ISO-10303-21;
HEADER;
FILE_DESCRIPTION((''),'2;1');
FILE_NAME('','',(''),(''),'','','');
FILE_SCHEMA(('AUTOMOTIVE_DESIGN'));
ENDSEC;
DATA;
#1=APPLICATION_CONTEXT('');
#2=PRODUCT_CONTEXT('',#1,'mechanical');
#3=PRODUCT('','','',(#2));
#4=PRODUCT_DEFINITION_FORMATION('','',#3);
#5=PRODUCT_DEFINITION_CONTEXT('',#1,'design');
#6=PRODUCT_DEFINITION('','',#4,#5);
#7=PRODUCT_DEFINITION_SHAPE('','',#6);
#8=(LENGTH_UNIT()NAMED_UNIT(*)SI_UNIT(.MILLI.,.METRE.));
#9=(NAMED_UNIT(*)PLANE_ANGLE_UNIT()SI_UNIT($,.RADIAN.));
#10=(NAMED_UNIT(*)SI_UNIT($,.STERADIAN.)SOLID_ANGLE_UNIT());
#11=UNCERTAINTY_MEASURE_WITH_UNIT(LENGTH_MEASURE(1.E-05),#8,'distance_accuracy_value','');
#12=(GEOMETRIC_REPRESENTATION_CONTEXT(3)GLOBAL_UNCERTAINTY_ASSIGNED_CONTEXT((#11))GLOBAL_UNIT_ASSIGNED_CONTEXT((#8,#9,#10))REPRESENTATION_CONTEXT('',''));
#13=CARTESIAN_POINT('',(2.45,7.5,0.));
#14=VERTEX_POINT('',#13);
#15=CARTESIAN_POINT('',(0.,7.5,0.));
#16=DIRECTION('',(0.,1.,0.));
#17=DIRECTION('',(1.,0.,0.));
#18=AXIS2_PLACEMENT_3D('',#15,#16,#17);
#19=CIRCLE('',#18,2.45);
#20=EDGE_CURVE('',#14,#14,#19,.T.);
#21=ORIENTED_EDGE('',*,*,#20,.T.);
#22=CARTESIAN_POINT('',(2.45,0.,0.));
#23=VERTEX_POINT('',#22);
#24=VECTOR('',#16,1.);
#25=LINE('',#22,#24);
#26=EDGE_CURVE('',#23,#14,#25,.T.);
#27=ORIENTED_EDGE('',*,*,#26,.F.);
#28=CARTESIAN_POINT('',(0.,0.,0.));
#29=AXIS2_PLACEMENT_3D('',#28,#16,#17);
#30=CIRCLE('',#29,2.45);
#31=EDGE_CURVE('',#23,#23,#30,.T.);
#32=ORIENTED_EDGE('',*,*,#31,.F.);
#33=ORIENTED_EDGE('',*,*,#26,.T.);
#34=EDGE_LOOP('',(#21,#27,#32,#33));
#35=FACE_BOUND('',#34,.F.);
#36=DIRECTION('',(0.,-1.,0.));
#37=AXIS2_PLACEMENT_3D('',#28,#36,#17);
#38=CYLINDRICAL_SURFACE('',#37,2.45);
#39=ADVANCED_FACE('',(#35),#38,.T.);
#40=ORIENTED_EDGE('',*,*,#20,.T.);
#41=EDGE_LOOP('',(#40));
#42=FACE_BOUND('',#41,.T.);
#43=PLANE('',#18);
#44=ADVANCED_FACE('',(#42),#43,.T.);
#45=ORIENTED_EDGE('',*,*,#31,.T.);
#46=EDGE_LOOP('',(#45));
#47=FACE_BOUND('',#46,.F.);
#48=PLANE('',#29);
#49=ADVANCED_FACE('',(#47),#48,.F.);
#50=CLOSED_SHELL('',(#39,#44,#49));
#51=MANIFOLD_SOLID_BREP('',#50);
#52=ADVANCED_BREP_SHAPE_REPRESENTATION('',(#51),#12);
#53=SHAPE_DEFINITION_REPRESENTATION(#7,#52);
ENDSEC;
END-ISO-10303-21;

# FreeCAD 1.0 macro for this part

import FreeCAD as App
import Part
import Sketcher
from FreeCAD import Vector

doc = App.newDocument("Part")
params = doc.addObject("Spreadsheet::Sheet", "Params")
for row, (alias, value) in enumerate([
    ("sketch1_diameter", "4.9 mm"),
    ("pad1_length", "7.5 mm"),
], start=1):
    params.set(f"A{row}", alias)
    params.set(f"B{row}", "=" + value)
    params.setAlias(f"B{row}", alias)

body = doc.addObject("PartDesign::Body", "Body")

# Sketch on XZ plane
sketch1 = doc.addObject("Sketcher::SketchObject", "Sketch")
body.addObject(sketch1)
sketch1.AttachmentSupport = (doc.XZ_Plane, [""])
sketch1.MapMode = "FlatFace"
sketch1.addGeometry(Part.Circle(Vector(0, 0, 0), Vector(0, 0, 1), 2.5), False)
sketch1.addConstraint(Sketcher.Constraint("Coincident", 0, 3, -1, 1))
sketch1.addConstraint(Sketcher.Constraint("Diameter", 0, 4.9))
sketch1.setExpression("Constraints[1]", "Params.sketch1_diameter")
pad1 = doc.addObject("PartDesign::Pad", "Pad")
body.addObject(pad1)
pad1.Profile = sketch1
pad1.setExpression("Length", "Params.pad1_length")
pad1.Reversed = True

doc.recompute()
